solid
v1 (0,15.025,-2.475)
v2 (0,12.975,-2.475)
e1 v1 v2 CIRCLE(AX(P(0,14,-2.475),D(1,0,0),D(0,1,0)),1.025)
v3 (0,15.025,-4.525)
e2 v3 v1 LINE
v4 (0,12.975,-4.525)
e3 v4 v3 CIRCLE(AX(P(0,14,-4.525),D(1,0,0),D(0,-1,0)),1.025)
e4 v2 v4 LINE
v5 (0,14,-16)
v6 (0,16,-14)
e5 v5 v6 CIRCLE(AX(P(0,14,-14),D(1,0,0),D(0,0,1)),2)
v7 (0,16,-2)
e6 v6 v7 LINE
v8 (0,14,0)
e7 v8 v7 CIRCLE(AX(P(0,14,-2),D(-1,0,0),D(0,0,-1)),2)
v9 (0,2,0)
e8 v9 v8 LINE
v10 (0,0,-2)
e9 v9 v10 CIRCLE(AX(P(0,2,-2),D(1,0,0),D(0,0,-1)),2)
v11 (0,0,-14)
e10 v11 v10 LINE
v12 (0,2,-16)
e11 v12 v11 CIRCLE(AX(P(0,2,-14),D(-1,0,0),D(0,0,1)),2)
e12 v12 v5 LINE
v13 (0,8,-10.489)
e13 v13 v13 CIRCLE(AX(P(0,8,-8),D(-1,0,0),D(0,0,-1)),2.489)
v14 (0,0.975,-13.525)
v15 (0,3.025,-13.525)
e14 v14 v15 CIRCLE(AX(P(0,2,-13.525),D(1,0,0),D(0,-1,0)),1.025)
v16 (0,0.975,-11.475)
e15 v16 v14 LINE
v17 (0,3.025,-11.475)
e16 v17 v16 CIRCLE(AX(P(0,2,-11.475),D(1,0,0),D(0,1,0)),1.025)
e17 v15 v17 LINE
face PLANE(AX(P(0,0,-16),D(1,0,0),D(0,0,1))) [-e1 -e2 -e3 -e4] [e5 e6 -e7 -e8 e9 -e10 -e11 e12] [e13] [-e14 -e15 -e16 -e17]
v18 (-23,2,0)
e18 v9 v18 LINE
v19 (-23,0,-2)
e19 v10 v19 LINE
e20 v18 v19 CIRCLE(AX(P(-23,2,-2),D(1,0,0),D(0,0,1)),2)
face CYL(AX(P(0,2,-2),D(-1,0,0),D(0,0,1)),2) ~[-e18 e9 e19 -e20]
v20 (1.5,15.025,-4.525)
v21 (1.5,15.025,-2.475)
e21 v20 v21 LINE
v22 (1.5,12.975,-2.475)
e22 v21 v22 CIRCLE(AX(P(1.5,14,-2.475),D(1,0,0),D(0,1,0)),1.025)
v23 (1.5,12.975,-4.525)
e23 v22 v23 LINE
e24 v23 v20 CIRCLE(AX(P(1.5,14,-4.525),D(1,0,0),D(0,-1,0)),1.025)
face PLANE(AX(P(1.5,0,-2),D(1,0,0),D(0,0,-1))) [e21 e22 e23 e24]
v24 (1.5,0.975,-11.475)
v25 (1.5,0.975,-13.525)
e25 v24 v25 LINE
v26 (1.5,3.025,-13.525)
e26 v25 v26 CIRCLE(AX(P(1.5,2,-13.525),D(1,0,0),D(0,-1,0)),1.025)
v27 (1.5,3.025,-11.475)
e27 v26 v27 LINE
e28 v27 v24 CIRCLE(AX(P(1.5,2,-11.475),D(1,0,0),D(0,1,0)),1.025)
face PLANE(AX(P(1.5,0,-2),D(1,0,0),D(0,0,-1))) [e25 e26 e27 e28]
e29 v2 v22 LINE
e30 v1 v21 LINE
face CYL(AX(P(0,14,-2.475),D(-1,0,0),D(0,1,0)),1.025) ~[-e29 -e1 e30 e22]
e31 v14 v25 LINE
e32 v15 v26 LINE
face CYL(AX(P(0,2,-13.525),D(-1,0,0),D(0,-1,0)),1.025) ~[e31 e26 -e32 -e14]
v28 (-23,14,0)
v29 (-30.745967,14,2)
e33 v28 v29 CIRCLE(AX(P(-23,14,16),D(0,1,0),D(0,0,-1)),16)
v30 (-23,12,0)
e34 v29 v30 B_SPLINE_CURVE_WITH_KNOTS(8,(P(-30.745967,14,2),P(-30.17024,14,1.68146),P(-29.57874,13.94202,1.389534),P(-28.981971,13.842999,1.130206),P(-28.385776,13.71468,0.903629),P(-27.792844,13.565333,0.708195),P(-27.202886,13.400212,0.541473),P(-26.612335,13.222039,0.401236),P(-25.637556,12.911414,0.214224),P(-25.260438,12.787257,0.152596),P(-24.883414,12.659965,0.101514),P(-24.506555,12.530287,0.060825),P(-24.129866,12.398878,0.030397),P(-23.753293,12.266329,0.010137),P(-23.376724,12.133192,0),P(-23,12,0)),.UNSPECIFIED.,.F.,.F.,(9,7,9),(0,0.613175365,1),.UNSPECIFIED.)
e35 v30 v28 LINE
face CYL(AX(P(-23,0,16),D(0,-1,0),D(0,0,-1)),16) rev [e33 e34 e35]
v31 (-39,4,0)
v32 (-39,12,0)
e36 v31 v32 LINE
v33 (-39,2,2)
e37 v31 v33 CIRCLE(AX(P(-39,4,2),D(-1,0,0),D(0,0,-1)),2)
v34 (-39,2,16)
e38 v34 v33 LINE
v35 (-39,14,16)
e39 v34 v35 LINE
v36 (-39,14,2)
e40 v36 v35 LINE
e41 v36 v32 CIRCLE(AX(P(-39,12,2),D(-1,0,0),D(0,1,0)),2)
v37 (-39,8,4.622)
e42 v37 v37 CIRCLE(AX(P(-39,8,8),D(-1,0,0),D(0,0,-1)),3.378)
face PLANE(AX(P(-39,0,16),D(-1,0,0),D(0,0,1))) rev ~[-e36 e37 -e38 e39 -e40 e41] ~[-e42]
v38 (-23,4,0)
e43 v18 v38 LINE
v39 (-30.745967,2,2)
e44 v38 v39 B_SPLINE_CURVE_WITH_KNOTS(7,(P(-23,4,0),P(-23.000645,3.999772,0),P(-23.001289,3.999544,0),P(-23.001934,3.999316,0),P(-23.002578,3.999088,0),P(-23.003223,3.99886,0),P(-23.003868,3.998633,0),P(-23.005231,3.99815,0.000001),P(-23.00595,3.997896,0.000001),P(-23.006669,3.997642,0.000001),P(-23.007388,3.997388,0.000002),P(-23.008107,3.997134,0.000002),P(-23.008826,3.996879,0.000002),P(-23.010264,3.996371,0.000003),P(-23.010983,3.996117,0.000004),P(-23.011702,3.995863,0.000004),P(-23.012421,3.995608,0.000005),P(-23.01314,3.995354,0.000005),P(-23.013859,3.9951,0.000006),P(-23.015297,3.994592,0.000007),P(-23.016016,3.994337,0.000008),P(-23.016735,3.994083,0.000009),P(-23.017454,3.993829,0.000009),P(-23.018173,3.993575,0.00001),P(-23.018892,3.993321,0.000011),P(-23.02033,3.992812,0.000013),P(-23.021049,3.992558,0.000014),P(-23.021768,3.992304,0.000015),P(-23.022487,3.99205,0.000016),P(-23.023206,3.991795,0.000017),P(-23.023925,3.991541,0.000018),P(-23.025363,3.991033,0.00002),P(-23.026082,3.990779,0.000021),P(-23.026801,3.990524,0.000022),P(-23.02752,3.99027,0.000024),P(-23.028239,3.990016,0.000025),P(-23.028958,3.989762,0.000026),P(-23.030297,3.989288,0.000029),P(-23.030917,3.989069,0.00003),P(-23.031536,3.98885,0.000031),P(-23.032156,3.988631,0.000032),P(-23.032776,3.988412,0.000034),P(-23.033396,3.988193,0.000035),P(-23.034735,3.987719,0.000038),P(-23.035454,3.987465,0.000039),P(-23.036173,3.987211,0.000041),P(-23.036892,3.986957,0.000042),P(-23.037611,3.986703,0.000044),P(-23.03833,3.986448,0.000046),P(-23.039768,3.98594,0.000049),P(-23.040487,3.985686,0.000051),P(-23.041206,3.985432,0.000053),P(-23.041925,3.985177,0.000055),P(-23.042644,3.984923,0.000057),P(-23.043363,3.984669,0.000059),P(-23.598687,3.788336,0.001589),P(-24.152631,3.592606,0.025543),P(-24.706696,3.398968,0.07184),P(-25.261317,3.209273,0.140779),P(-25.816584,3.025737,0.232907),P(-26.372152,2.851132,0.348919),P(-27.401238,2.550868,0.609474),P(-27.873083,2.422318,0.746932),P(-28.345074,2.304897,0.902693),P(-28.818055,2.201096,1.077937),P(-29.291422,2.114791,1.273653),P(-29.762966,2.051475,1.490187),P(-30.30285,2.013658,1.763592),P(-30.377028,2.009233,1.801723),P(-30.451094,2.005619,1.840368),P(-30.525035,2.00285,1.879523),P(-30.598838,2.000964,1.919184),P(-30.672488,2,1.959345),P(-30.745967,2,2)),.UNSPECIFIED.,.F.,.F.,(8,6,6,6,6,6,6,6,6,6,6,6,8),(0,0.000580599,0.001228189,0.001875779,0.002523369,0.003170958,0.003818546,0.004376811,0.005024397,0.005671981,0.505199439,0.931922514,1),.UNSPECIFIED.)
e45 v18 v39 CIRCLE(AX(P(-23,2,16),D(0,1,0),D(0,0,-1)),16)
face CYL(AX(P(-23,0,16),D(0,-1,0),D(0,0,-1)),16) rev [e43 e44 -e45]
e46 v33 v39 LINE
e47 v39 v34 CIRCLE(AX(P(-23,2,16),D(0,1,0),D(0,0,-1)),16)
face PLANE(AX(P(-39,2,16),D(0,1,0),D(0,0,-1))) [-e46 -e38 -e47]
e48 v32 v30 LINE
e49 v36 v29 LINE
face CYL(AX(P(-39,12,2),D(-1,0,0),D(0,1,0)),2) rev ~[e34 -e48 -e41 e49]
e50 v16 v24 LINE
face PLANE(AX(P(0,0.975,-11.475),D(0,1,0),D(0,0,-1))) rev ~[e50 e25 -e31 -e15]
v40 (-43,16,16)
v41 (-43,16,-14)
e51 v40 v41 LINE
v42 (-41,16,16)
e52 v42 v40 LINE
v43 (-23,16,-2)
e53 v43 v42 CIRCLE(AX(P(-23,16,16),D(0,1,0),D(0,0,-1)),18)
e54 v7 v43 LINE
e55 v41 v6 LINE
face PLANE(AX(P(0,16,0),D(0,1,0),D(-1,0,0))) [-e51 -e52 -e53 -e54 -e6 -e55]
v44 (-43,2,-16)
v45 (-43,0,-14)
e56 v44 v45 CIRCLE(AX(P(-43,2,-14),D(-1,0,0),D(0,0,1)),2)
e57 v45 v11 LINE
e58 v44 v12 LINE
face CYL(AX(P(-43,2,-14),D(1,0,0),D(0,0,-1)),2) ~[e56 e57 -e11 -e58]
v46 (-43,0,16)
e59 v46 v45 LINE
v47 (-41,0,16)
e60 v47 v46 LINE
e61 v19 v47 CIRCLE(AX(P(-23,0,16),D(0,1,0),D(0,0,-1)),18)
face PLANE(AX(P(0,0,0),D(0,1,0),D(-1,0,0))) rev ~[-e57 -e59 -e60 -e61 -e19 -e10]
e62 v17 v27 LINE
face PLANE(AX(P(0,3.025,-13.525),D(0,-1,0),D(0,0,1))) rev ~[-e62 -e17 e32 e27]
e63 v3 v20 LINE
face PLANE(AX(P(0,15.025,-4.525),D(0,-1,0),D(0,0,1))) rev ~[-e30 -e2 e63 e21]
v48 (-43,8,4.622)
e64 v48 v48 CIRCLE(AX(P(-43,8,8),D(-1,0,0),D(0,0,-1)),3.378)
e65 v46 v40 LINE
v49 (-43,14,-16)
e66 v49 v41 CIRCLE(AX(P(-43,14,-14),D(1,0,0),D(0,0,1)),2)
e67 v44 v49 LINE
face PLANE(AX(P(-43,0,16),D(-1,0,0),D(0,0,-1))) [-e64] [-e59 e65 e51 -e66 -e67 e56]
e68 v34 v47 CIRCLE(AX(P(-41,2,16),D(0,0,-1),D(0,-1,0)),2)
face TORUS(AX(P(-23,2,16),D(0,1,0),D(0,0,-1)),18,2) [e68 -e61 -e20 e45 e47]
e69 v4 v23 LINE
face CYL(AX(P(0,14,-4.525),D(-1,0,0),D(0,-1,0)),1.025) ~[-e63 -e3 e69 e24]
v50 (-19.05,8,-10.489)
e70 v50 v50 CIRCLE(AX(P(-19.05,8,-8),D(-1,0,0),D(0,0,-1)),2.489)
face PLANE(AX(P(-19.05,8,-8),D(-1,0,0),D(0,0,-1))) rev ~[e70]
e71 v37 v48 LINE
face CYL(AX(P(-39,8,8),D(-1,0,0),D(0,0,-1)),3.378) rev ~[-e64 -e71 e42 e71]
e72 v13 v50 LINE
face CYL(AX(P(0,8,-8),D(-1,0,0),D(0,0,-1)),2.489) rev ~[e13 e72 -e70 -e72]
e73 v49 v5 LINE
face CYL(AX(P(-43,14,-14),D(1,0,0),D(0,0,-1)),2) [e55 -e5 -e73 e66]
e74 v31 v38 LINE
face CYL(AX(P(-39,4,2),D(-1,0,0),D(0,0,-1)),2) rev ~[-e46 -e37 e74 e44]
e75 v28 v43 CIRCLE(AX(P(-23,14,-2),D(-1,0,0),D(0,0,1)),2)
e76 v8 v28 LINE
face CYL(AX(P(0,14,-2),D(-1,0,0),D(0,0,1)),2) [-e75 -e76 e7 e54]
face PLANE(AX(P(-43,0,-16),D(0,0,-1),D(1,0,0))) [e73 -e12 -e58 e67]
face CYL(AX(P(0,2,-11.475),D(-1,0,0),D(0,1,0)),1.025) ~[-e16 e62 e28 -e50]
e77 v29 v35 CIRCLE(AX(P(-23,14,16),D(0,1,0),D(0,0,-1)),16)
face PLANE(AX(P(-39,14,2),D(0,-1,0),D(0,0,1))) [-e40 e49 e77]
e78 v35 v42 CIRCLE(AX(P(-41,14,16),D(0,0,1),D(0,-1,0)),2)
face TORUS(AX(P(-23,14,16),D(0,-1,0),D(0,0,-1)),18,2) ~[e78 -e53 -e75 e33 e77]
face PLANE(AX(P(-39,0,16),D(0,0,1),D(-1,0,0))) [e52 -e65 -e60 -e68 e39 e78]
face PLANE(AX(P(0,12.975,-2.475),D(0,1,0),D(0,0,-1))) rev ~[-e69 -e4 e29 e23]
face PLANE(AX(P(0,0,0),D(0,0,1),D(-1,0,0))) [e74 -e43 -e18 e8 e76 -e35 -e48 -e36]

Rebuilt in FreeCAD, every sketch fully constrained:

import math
import FreeCAD as App
import Part
import Sketcher


def edges_at(feature, points):
    """Names of the edges that pass closest to the given points."""
    edges = feature.Shape.Edges
    near = lambda p: min(range(len(edges)), key=lambda i: edges[i].distToShape(Part.Vertex(*p))[0])
    return sorted({f"Edge{near(p) + 1}" for p in points})

doc = App.newDocument("Part")
body = doc.addObject("PartDesign::Body", "Body")

# Sketch on XZ plane
sketch1 = body.newObject("Sketcher::SketchObject", "Sketch")
sketch1.AttachmentSupport = (doc.getObject("XZ_Plane"), [""])
sketch1.MapMode = "FlatFace"
sketch1.addGeometry([
    Part.LineSegment(App.Vector(-43, -16, 0), App.Vector(-43, 16, 0)),  # 0
    Part.LineSegment(App.Vector(-43, 16, 0), App.Vector(-39, 16, 0)),  # 1
    Part.ArcOfCircle(Part.Circle(App.Vector(-23, 16, 0), App.Vector(0, 0, 1), 16), math.radians(180), math.radians(270)),  # 2
    Part.LineSegment(App.Vector(-23, 0, 0), App.Vector(0, 0, 0)),  # 3
    Part.LineSegment(App.Vector(0, 0, 0), App.Vector(0, -16, 0)),  # 4
    Part.LineSegment(App.Vector(0, -16, 0), App.Vector(-43, -16, 0)),  # 5
], False)
sketch1.addConstraint([
    Sketcher.Constraint("Coincident", 0, 2, 1, 1),
    Sketcher.Constraint("Coincident", 1, 2, 2, 1),
    Sketcher.Constraint("Tangent", 2, 2, 3, 1),
    Sketcher.Constraint("Coincident", 3, 2, 4, 1),
    Sketcher.Constraint("Coincident", 4, 2, 5, 1),
    Sketcher.Constraint("Coincident", 5, 2, 0, 1),
    Sketcher.Constraint("Vertical", 0),
    Sketcher.Constraint("Horizontal", 1),
    Sketcher.Constraint("Horizontal", 3),
    Sketcher.Constraint("Vertical", 4),
    Sketcher.Constraint("Horizontal", 5),
    Sketcher.Constraint("Coincident", 3, 2, -1, 1),
    Sketcher.Constraint("Horizontal", 2, 3, 0, 2),
    Sketcher.Constraint("Radius", 2, 16.0),
    Sketcher.Constraint("DistanceX", 1, 1, 1, 2, 4.0),
    Sketcher.Constraint("DistanceX", 5, 2, 5, 1, 43.0),
    Sketcher.Constraint("DistanceY", 0, 1, 0, 2, 32.0),
])
pad1 = body.newObject("PartDesign::Pad", "Pad")
pad1.Profile = sketch1
pad1.Length = 16
pad1.Reversed = True
doc.recompute()

fillet = body.newObject("PartDesign::Fillet", "Fillet")
fillet.Base = (pad1, edges_at(pad1, [
    (-34.314, 16, 4.686),
    (-11.5, 16, 0),
    (-21.5, 16, -16),
    (-21.5, 0, -16),
    (-34.314, 0, 4.686),
    (-11.5, 0, 0),
]))
fillet.Radius = 2

# Sketch on YZ plane
sketch2 = body.newObject("Sketcher::SketchObject", "Sketch001")
sketch2.AttachmentSupport = (doc.getObject("YZ_Plane"), [""])
sketch2.MapMode = "FlatFace"
sketch2.AttachmentOffset = App.Placement(App.Vector(0, 0, -39), App.Rotation())
sketch2.addGeometry([
    Part.LineSegment(App.Vector(14, 16, 0), App.Vector(14, 2, 0)),  # 0
    Part.ArcOfCircle(Part.Circle(App.Vector(12, 2, 0), App.Vector(0, 0, 1), 2), math.radians(-90), math.radians(0)),  # 1
    Part.LineSegment(App.Vector(12, 0, 0), App.Vector(4, 0, 0)),  # 2
    Part.ArcOfCircle(Part.Circle(App.Vector(4, 2, 0), App.Vector(0, 0, 1), 2), math.radians(180), math.radians(270)),  # 3
    Part.LineSegment(App.Vector(2, 2, 0), App.Vector(2, 16, 0)),  # 4
    Part.LineSegment(App.Vector(2, 16, 0), App.Vector(14, 16, 0)),  # 5
], False)
sketch2.addConstraint([
    Sketcher.Constraint("Tangent", 0, 2, 1, 2),
    Sketcher.Constraint("Tangent", 1, 1, 2, 1),
    Sketcher.Constraint("Tangent", 2, 2, 3, 2),
    Sketcher.Constraint("Tangent", 3, 1, 4, 1),
    Sketcher.Constraint("Coincident", 4, 2, 5, 1),
    Sketcher.Constraint("Coincident", 5, 2, 0, 1),
    Sketcher.Constraint("Vertical", 0),
    Sketcher.Constraint("Horizontal", 2),
    Sketcher.Constraint("Vertical", 4),
    Sketcher.Constraint("Horizontal", 5),
    Sketcher.Constraint("Equal", 1, 3),
    Sketcher.Constraint("PointOnObject", 1, 1, -1),
    Sketcher.Constraint("Radius", 1, 2.0),
    Sketcher.Constraint("DistanceX", -1, 1, 3, 1, 2.0),
    Sketcher.Constraint("DistanceY", -1, 1, 4, 2, 16.0),
    Sketcher.Constraint("DistanceX", 2, 2, 2, 1, 8.0),
])
pocket1 = body.newObject("PartDesign::Pocket", "Pocket")
pocket1.Profile = sketch2
pocket1.Length = 16
pocket1.Reversed = True

# Sketch on YZ plane
sketch3 = body.newObject("Sketcher::SketchObject", "Sketch002")
sketch3.AttachmentSupport = (doc.getObject("YZ_Plane"), [""])
sketch3.MapMode = "FlatFace"
sketch3.AttachmentOffset = App.Placement(App.Vector(0, 0, -39), App.Rotation())
sketch3.addGeometry(Part.Circle(App.Vector(8, 8, 0), App.Vector(0, 0, 1), 3.4), False)
sketch3.addConstraint([
    Sketcher.Constraint("Diameter", 0, 6.756),
    Sketcher.Constraint("DistanceX", -1, 1, 0, 3, 8.0),
    Sketcher.Constraint("DistanceY", -1, 1, 0, 3, 8.0),
])
doc.recompute()
hole = body.newObject("PartDesign::Hole", "Hole")
hole.Profile = sketch3
hole.ThreadType = "None"
hole.Diameter = 6.756
hole.DepthType = "Dimension"
hole.Depth = 8.8
hole.DrillPoint = "Flat"

# Sketch on YZ plane
sketch4 = body.newObject("Sketcher::SketchObject", "Sketch003")
sketch4.AttachmentSupport = (doc.getObject("YZ_Plane"), [""])
sketch4.MapMode = "FlatFace"
sketch4.addGeometry([
    Part.ArcOfCircle(Part.Circle(App.Vector(14, -2.5, 0), App.Vector(0, 0, 1), 1), math.radians(0), math.radians(180)),  # 0
    Part.LineSegment(App.Vector(13, -2.5, 0), App.Vector(13, -4.5, 0)),  # 1
    Part.ArcOfCircle(Part.Circle(App.Vector(14, -4.5, 0), App.Vector(0, 0, 1), 1), math.radians(180), math.radians(360)),  # 2
    Part.LineSegment(App.Vector(15, -4.5, 0), App.Vector(15, -2.5, 0)),  # 3
    Part.ArcOfCircle(Part.Circle(App.Vector(2, -11.5, 0), App.Vector(0, 0, 1), 1), math.radians(0), math.radians(180)),  # 4
    Part.LineSegment(App.Vector(1, -11.5, 0), App.Vector(1, -13.5, 0)),  # 5
    Part.ArcOfCircle(Part.Circle(App.Vector(2, -13.5, 0), App.Vector(0, 0, 1), 1), math.radians(180), math.radians(360)),  # 6
    Part.LineSegment(App.Vector(3, -13.5, 0), App.Vector(3, -11.5, 0)),  # 7
], False)
sketch4.addConstraint([
    Sketcher.Constraint("Tangent", 0, 2, 1, 1),
    Sketcher.Constraint("Tangent", 1, 2, 2, 1),
    Sketcher.Constraint("Tangent", 2, 2, 3, 1),
    Sketcher.Constraint("Tangent", 3, 2, 0, 1),
    Sketcher.Constraint("Tangent", 4, 2, 5, 1),
    Sketcher.Constraint("Tangent", 5, 2, 6, 1),
    Sketcher.Constraint("Tangent", 6, 2, 7, 1),
    Sketcher.Constraint("Tangent", 7, 2, 4, 1),
    Sketcher.Constraint("Vertical", 1),
    Sketcher.Constraint("Vertical", 3),
    Sketcher.Constraint("Vertical", 5),
    Sketcher.Constraint("Vertical", 7),
    Sketcher.Constraint("Equal", 2, 4),
    Sketcher.Constraint("Equal", 3, 5),
    Sketcher.Constraint("Radius", 0, 1.025),
    Sketcher.Constraint("DistanceX", 4, 3, 2, 3, 12.0),
    Sketcher.Constraint("DistanceY", 4, 3, 0, 3, 9.0),
    Sketcher.Constraint("DistanceY", 1, 2, 1, 1, 2.05),
    Sketcher.Constraint("DistanceX", -1, 1, 0, 3, 14.0),
    Sketcher.Constraint("DistanceY", 0, 3, -1, 1, 2.475),
])
pad2 = body.newObject("PartDesign::Pad", "Pad001")
pad2.Profile = sketch4
pad2.Length = 1.5

# Sketch on YZ plane
sketch5 = body.newObject("Sketcher::SketchObject", "Sketch004")
sketch5.AttachmentSupport = (doc.getObject("YZ_Plane"), [""])
sketch5.MapMode = "FlatFace"
sketch5.addGeometry(Part.Circle(App.Vector(8, -8, 0), App.Vector(0, 0, 1), 2.5), False)
sketch5.addConstraint([
    Sketcher.Constraint("Diameter", 0, 4.978),
    Sketcher.Constraint("DistanceX", -1, 1, 0, 3, 8.0),
    Sketcher.Constraint("DistanceY", 0, 3, -1, 1, 8.0),
])
doc.recompute()
hole2 = body.newObject("PartDesign::Hole", "Hole001")
hole2.Profile = sketch5
hole2.ThreadType = "None"
hole2.Diameter = 4.978
hole2.DepthType = "Dimension"
hole2.Depth = 19.05
hole2.DrillPoint = "Flat"

doc.recompute()
